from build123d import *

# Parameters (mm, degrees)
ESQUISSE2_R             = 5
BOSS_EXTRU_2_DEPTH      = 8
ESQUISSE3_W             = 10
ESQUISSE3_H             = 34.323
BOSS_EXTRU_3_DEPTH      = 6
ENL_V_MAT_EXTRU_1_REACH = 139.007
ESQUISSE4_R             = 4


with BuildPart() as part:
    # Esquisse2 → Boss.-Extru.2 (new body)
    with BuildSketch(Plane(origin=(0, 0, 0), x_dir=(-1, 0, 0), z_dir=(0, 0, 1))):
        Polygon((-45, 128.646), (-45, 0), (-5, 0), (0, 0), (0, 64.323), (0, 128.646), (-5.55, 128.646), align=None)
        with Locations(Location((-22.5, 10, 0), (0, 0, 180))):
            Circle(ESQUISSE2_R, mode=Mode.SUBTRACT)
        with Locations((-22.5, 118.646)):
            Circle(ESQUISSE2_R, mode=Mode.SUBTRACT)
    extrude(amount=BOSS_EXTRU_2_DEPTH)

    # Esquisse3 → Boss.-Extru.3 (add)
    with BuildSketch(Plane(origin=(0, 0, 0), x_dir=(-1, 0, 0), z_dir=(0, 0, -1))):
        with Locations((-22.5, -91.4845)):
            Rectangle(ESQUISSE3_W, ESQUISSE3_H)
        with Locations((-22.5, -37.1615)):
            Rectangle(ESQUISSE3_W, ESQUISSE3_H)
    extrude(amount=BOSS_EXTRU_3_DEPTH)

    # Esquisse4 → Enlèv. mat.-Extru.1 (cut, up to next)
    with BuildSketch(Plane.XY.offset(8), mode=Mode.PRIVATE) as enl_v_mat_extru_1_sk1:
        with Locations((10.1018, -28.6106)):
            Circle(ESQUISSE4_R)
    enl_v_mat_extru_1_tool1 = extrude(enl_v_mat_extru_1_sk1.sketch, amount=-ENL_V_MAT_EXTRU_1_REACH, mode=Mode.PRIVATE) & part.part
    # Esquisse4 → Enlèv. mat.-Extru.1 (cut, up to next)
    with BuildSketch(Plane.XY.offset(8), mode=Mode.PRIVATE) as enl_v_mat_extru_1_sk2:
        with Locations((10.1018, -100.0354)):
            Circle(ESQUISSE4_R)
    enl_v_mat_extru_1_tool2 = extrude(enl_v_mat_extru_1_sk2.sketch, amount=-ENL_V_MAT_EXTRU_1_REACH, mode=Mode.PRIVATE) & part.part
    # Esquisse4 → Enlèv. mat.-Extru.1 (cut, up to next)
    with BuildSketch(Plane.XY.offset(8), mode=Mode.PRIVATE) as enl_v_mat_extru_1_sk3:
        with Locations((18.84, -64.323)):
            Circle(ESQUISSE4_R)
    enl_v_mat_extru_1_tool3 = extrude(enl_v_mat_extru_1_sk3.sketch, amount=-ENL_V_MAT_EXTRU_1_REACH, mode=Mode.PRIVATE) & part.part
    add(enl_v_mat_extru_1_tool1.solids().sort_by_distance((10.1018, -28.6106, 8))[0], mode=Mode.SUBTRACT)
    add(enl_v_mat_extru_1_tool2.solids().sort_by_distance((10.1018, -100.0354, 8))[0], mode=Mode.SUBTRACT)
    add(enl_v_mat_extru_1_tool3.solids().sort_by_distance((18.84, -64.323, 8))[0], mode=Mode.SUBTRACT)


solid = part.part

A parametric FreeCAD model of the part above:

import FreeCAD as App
import Part
import Sketcher
Q = App.Units.Quantity

doc = App.newDocument("Part")
body = doc.addObject("PartDesign::Body", "Body")

sketch1 = body.newObject("Sketcher::SketchObject", "Sketch")
sketch1.AttachmentSupport = (doc.getObject("XY_Plane"), [""])
sketch1.MapMode = "FlatFace"
sketch1.addGeometry([
    Part.LineSegment(App.Vector(45, -129, 0), App.Vector(45, 0, 0)),
    Part.LineSegment(App.Vector(45, 0, 0), App.Vector(0, 0, 0)),
    Part.LineSegment(App.Vector(0, 0, 0), App.Vector(0, -129, 0)),
    Part.LineSegment(App.Vector(0, -129, 0), App.Vector(45, -129, 0)),
    Part.Circle(App.Vector(22, -10, 0), App.Vector(0, 0, 1), 5),
    Part.Circle(App.Vector(22, -119, 0), App.Vector(0, 0, 1), 5),
], False)
sketch1.addConstraint([
    Sketcher.Constraint("Coincident", 0, 2, 1, 1),
    Sketcher.Constraint("Coincident", 1, 2, 2, 1),
    Sketcher.Constraint("Coincident", 2, 2, 3, 1),
    Sketcher.Constraint("Coincident", 3, 2, 0, 1),
    Sketcher.Constraint("Vertical", 0),
    Sketcher.Constraint("Horizontal", 1),
    Sketcher.Constraint("Vertical", 2),
    Sketcher.Constraint("Horizontal", 3),
    Sketcher.Constraint("Coincident", 1, 2, -1, 1),
    Sketcher.Constraint("Equal", 4, 5),
    Sketcher.Constraint("Vertical", 4, 3, 5, 3),
    Sketcher.Constraint("Diameter", 4, Q("10 mm")),
    Sketcher.Constraint("DistanceX", 1, 2, 1, 1, Q("45 mm")),
    Sketcher.Constraint("DistanceY", 4, 3, -1, 1, Q("10 mm")),
    Sketcher.Constraint("DistanceY", 2, 2, 5, 3, Q("10 mm")),
    Sketcher.Constraint("DistanceX", -1, 1, 4, 3, Q("22.5 mm")),
    Sketcher.Constraint("DistanceY", 0, 1, 0, 2, Q("128.646 mm")),
])
pad1 = body.newObject("PartDesign::Pad", "Pad")
pad1.Profile = sketch1
pad1.Length = 8

sketch2 = body.newObject("Sketcher::SketchObject", "Sketch001")
sketch2.AttachmentSupport = (doc.getObject("XY_Plane"), [""])
sketch2.MapMode = "FlatFace"
sketch2.addGeometry([
    Part.LineSegment(App.Vector(28, -74, 0), App.Vector(28, -109, 0)),
    Part.LineSegment(App.Vector(28, -109, 0), App.Vector(18, -109, 0)),
    Part.LineSegment(App.Vector(18, -109, 0), App.Vector(18, -74, 0)),
    Part.LineSegment(App.Vector(18, -74, 0), App.Vector(28, -74, 0)),
    Part.LineSegment(App.Vector(28, -20, 0), App.Vector(28, -54, 0)),
    Part.LineSegment(App.Vector(28, -54, 0), App.Vector(18, -54, 0)),
    Part.LineSegment(App.Vector(18, -54, 0), App.Vector(18, -20, 0)),
    Part.LineSegment(App.Vector(18, -20, 0), App.Vector(28, -20, 0)),
], False)
sketch2.addConstraint([
    Sketcher.Constraint("Coincident", 0, 2, 1, 1),
    Sketcher.Constraint("Coincident", 1, 2, 2, 1),
    Sketcher.Constraint("Coincident", 2, 2, 3, 1),
    Sketcher.Constraint("Coincident", 3, 2, 0, 1),
    Sketcher.Constraint("Coincident", 4, 2, 5, 1),
    Sketcher.Constraint("Coincident", 5, 2, 6, 1),
    Sketcher.Constraint("Coincident", 6, 2, 7, 1),
    Sketcher.Constraint("Coincident", 7, 2, 4, 1),
    Sketcher.Constraint("Vertical", 0),
    Sketcher.Constraint("Horizontal", 1),
    Sketcher.Constraint("Vertical", 2),
    Sketcher.Constraint("Horizontal", 3),
    Sketcher.Constraint("Vertical", 4),
    Sketcher.Constraint("Horizontal", 5),
    Sketcher.Constraint("Vertical", 6),
    Sketcher.Constraint("Horizontal", 7),
    Sketcher.Constraint("Vertical", 3, 2, 4, 2),
    Sketcher.Constraint("Vertical", 2, 2, 5, 2),
    Sketcher.Constraint("Equal", 2, 4),
    Sketcher.Constraint("DistanceX", 1, 2, 1, 1, Q("10 mm")),
    Sketcher.Constraint("DistanceY", 6, 2, -1, 1, Q("20 mm")),
    Sketcher.Constraint("DistanceY", 3, 2, 4, 2, Q("20 mm")),
    Sketcher.Constraint("DistanceX", -1, 1, 0, 2, Q("27.5 mm")),
    Sketcher.Constraint("DistanceY", 0, 2, 0, 1, Q("34.323 mm")),
])
pad2 = body.newObject("PartDesign::Pad", "Pad001")
pad2.Profile = sketch2
pad2.Length = 6
pad2.Reversed = True

sketch3 = body.newObject("Sketcher::SketchObject", "Sketch002")
sketch3.AttachmentSupport = (doc.getObject("XY_Plane"), [""])
sketch3.MapMode = "FlatFace"
sketch3.AttachmentOffset = App.Placement(App.Vector(0, 0, 8), App.Rotation())
sketch3.addGeometry(Part.Circle(App.Vector(10.1, -28.6, 0), App.Vector(0, 0, 1), 4), False)
sketch3.addConstraint([
    Sketcher.Constraint("Diameter", 0, Q("8 mm")),
    Sketcher.Constraint("DistanceX", -1, 1, 0, 3, Q("10.1018 mm")),
    Sketcher.Constraint("DistanceY", 0, 3, -1, 1, Q("28.6106 mm")),
])
pocket1 = body.newObject("PartDesign::Pocket", "Pocket")
pocket1.Profile = sketch3
pocket1.Type = "UpToFirst"

sketch4 = body.newObject("Sketcher::SketchObject", "Sketch003")
sketch4.AttachmentSupport = (doc.getObject("XY_Plane"), [""])
sketch4.MapMode = "FlatFace"
sketch4.AttachmentOffset = App.Placement(App.Vector(0, 0, 8), App.Rotation())
sketch4.addGeometry(Part.Circle(App.Vector(10.1, -100, 0), App.Vector(0, 0, 1), 4), False)
sketch4.addConstraint([
    Sketcher.Constraint("Diameter", 0, Q("8 mm")),
    Sketcher.Constraint("DistanceX", -1, 1, 0, 3, Q("10.1018 mm")),
    Sketcher.Constraint("DistanceY", 0, 3, -1, 1, Q("100.0354 mm")),
])
pocket2 = body.newObject("PartDesign::Pocket", "Pocket001")
pocket2.Profile = sketch4
pocket2.Type = "UpToFirst"

sketch5 = body.newObject("Sketcher::SketchObject", "Sketch004")
sketch5.AttachmentSupport = (doc.getObject("XY_Plane"), [""])
sketch5.MapMode = "FlatFace"
sketch5.AttachmentOffset = App.Placement(App.Vector(0, 0, 8), App.Rotation())
sketch5.addGeometry(Part.Circle(App.Vector(18.8, -64.3, 0), App.Vector(0, 0, 1), 4), False)
sketch5.addConstraint([
    Sketcher.Constraint("Diameter", 0, Q("8 mm")),
    Sketcher.Constraint("DistanceX", -1, 1, 0, 3, Q("18.84 mm")),
    Sketcher.Constraint("DistanceY", 0, 3, -1, 1, Q("64.323 mm")),
])
pocket3 = body.newObject("PartDesign::Pocket", "Pocket002")
pocket3.Profile = sketch5
pocket3.Type = "UpToFirst"

doc.recompute()
